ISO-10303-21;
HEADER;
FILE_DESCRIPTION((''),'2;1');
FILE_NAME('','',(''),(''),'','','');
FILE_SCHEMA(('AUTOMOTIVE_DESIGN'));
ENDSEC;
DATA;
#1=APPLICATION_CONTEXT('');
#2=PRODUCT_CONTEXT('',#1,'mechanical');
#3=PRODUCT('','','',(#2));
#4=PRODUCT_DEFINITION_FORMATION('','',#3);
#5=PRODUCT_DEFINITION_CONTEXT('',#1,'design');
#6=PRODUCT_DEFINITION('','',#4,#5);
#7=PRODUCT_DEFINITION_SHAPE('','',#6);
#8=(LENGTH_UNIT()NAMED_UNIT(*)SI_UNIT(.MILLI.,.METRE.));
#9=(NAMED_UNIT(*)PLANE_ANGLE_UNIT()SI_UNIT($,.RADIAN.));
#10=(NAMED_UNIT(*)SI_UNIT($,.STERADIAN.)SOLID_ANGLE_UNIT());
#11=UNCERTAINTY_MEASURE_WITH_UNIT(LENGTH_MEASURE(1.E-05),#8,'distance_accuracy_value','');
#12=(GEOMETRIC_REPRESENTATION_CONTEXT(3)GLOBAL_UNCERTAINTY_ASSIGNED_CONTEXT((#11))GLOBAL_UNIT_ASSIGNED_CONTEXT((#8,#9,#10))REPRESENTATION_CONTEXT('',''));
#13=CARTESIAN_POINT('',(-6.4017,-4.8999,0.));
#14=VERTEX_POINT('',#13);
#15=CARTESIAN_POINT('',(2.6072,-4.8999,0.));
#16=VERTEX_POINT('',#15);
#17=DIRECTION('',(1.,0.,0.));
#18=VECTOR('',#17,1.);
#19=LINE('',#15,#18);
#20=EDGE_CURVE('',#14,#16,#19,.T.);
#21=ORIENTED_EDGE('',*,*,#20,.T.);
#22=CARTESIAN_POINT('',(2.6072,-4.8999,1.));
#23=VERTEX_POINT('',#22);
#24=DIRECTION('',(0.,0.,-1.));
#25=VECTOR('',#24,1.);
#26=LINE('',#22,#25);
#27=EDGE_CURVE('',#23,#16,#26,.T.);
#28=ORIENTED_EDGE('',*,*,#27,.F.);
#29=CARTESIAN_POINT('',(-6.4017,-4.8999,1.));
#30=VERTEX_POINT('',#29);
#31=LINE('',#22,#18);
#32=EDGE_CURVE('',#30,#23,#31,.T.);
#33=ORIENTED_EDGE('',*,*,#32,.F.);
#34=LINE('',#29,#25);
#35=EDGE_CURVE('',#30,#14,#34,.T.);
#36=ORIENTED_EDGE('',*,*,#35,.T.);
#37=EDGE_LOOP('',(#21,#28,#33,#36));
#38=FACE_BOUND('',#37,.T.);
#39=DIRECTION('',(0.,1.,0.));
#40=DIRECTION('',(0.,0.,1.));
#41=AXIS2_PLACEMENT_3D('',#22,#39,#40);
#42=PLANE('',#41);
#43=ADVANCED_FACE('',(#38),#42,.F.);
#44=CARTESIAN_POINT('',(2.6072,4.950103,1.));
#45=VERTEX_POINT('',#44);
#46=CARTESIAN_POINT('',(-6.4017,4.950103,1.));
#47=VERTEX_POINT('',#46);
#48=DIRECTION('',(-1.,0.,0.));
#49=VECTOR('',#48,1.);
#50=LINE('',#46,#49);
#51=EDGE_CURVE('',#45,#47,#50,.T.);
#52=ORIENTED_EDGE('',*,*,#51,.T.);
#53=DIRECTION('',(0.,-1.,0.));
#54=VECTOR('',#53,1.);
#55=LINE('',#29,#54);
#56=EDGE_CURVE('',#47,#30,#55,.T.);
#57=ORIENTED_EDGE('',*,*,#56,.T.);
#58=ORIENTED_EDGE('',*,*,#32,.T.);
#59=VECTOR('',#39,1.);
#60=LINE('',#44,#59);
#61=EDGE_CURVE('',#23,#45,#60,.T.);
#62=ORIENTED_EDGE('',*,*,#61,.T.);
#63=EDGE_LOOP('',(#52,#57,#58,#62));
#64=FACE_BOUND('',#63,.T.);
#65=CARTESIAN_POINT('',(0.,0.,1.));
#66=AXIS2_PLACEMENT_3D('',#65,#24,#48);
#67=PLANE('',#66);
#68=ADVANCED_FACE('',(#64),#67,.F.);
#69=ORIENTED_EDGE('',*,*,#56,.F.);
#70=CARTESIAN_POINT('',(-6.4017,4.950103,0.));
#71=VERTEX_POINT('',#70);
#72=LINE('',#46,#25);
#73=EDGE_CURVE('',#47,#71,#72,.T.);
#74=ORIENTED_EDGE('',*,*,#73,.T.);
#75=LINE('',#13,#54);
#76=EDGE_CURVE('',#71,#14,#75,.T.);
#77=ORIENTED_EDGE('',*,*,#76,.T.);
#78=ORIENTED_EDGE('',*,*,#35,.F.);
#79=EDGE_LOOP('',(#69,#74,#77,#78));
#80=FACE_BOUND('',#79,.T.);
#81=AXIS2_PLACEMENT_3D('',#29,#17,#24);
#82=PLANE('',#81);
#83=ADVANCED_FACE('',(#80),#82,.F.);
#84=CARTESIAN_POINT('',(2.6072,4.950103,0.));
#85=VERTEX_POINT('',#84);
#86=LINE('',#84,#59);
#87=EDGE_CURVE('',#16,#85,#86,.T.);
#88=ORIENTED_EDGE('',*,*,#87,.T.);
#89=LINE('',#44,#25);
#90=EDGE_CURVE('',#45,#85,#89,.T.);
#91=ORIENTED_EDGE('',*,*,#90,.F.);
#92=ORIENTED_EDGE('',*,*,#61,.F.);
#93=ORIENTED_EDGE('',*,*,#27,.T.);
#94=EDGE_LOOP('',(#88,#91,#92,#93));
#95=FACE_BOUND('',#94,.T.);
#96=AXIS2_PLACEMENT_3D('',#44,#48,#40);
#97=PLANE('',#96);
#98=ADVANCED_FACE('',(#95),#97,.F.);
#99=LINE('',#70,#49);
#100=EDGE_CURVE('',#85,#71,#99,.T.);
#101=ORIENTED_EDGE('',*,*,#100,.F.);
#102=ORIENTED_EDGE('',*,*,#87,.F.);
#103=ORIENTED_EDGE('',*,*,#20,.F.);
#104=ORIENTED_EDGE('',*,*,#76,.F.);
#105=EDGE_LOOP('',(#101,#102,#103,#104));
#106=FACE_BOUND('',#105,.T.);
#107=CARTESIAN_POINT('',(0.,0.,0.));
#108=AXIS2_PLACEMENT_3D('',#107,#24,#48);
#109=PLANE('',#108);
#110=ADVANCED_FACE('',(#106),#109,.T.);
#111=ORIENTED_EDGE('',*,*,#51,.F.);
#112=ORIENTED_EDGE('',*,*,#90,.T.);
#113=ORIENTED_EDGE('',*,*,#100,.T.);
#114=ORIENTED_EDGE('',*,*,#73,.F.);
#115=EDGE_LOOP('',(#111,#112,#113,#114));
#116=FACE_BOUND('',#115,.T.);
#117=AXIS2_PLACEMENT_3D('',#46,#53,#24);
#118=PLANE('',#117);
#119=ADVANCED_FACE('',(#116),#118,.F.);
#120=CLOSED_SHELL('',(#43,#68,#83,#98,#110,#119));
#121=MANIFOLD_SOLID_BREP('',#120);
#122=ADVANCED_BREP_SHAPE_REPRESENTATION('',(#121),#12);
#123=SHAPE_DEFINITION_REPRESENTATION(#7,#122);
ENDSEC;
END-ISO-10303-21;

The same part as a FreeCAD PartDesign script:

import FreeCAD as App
import Part
import Sketcher


def add_polygon(sketch, points):
    """Adds a closed chain of lines whose ends are joined by coincident constraints."""
    first, n = sketch.GeometryCount, len(points)
    for a, b in zip(points, points[1:] + points[:1]):
        sketch.addGeometry(Part.LineSegment(App.Vector(*a, 0), App.Vector(*b, 0)), False)
    for i in range(n):
        sketch.addConstraint(Sketcher.Constraint("Coincident", first + i, 2, first + (i + 1) % n, 1))

doc = App.newDocument("Part")
body = doc.addObject("PartDesign::Body", "Body")

# Sketch on XY plane
sketch1 = doc.addObject("Sketcher::SketchObject", "Sketch")
body.addObject(sketch1)
sketch1.AttachmentSupport = (doc.XY_Plane, [""])
sketch1.MapMode = "FlatFace"
add_polygon(sketch1, [(-6.4017, 4.950103), (-6.4017, -4.8999), (2.6072, -4.8999), (2.6072, 4.950103)])  # lines 0-3
sketch1.addConstraint([
    Sketcher.Constraint("Vertical", 0),
    Sketcher.Constraint("Horizontal", 1),
    Sketcher.Constraint("Vertical", 2),
    Sketcher.Constraint("Horizontal", 3),
    Sketcher.Constraint("DistanceX", 1, 1, 1, 2, 9.0089),
    Sketcher.Constraint("DistanceX", 0, 2, -1, 1, 6.4017),
    Sketcher.Constraint("DistanceY", 0, 2, -1, 1, 4.8999),
    Sketcher.Constraint("DistanceY", 0, 2, 0, 1, 9.850003),
])
pad1 = doc.addObject("PartDesign::Pad", "Pad")
body.addObject(pad1)
pad1.Profile = sketch1
pad1.Length = 1

doc.recompute()
